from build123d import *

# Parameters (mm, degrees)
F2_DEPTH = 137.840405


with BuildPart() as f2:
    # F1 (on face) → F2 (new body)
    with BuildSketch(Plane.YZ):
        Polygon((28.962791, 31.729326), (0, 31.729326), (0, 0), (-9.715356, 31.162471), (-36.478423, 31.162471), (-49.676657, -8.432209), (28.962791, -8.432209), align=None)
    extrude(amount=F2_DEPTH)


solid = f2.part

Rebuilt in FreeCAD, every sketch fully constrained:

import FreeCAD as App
import Part
import Sketcher
from FreeCAD import Vector
Q = App.Units.Quantity


def add_polygon(sketch, points):
    """Adds a closed chain of lines whose ends are joined by coincident constraints."""
    first, n = sketch.GeometryCount, len(points)
    for a, b in zip(points, points[1:] + points[:1]):
        sketch.addGeometry(Part.LineSegment(App.Vector(*a, 0), App.Vector(*b, 0)), False)
    for i in range(n):
        sketch.addConstraint(Sketcher.Constraint("Coincident", first + i, 2, first + (i + 1) % n, 1))

doc = App.newDocument("Part")
body = doc.addObject("PartDesign::Body", "Body")

sketch1 = body.newObject("Sketcher::SketchObject", "Sketch")
sketch1.AttachmentSupport = (doc.getObject("YZ_Plane"), [""])
sketch1.MapMode = "FlatFace"
add_polygon(sketch1, [(28.962791, 31.729326), (0, 31.729326), (0, 0), (-9.715356, 31.162471), (-36.478423, 31.162471), (-49.676657, -8.432209), (28.962791, -8.432209)])
sketch1.addConstraint([
    Sketcher.Constraint("Horizontal", 0),
    Sketcher.Constraint("Vertical", 1),
    Sketcher.Constraint("Horizontal", 3),
    Sketcher.Constraint("Horizontal", 5),
    Sketcher.Constraint("Vertical", 6),
    Sketcher.Constraint("Coincident", 1, 2, -1, 1),
    Sketcher.Constraint("DistanceX", 0, 2, 0, 1, Q("28.962791 mm")),
    Sketcher.Constraint("DistanceX", 5, 1, 5, 2, Q("78.639448 mm")),
    Sketcher.Constraint("DistanceX", 4, 2, 2, 2, Q("39.961301 mm")),
    Sketcher.Constraint("Distance", 2, Q("32.64181 mm")),
    Sketcher.Constraint("Distance", 4, Q("41.73646 mm")),
    Sketcher.Constraint("DistanceX", 3, 2, 3, 1, Q("26.763067 mm")),
    Sketcher.Constraint("DistanceY", 1, 2, 1, 1, Q("31.729326 mm")),
])
pad1 = body.newObject("PartDesign::Pad", "Pad")
pad1.Profile = sketch1
pad1.Length = 137.840405

doc.recompute()
